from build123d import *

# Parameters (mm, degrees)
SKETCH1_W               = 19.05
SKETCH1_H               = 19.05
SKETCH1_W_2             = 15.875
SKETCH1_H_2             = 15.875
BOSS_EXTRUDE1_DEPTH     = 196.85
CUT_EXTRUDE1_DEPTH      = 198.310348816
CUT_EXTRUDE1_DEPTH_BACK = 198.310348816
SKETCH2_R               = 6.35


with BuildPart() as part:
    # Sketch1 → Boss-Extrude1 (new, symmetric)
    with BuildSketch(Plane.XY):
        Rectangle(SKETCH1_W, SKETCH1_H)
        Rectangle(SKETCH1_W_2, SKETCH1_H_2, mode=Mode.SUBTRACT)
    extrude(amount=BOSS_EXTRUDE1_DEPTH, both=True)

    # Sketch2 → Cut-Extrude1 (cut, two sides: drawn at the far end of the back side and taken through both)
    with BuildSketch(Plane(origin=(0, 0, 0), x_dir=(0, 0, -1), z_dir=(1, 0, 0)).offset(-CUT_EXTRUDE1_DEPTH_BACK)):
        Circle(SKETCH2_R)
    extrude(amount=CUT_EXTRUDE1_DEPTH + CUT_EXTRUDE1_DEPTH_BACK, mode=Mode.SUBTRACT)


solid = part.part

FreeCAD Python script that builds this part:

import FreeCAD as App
import Part
import Sketcher
from FreeCAD import Vector
Q = App.Units.Quantity

doc = App.newDocument("Part")
body = doc.addObject("PartDesign::Body", "Body")

# Sketch on XY plane
sketch1 = doc.addObject("Sketcher::SketchObject", "Sketch")
body.addObject(sketch1)
sketch1.AttachmentSupport = (doc.XY_Plane, [""])
sketch1.MapMode = "FlatFace"
sketch1.addGeometry([
    Part.LineSegment(Vector(-9.525, 9.525, 0), Vector(-9.525, -9.525, 0)),  # 0
    Part.LineSegment(Vector(-9.525, -9.525, 0), Vector(9.525, -9.525, 0)),  # 1
    Part.LineSegment(Vector(9.525, -9.525, 0), Vector(9.525, 9.525, 0)),  # 2
    Part.LineSegment(Vector(9.525, 9.525, 0), Vector(-9.525, 9.525, 0)),  # 3
    Part.LineSegment(Vector(7.9375, -7.9375, 0), Vector(-7.9375, -7.9375, 0)),  # 4
    Part.LineSegment(Vector(-7.9375, -7.9375, 0), Vector(-7.9375, 7.9375, 0)),  # 5
    Part.LineSegment(Vector(-7.9375, 7.9375, 0), Vector(7.9375, 7.9375, 0)),  # 6
    Part.LineSegment(Vector(7.9375, 7.9375, 0), Vector(7.9375, -7.9375, 0)),  # 7
], False)
sketch1.addConstraint([
    Sketcher.Constraint("Coincident", 0, 2, 1, 1),
    Sketcher.Constraint("Coincident", 1, 2, 2, 1),
    Sketcher.Constraint("Coincident", 2, 2, 3, 1),
    Sketcher.Constraint("Coincident", 3, 2, 0, 1),
    Sketcher.Constraint("Coincident", 4, 2, 5, 1),
    Sketcher.Constraint("Coincident", 5, 2, 6, 1),
    Sketcher.Constraint("Coincident", 6, 2, 7, 1),
    Sketcher.Constraint("Coincident", 7, 2, 4, 1),
    Sketcher.Constraint("Vertical", 0),
    Sketcher.Constraint("Horizontal", 1),
    Sketcher.Constraint("Vertical", 2),
    Sketcher.Constraint("Horizontal", 3),
    Sketcher.Constraint("Horizontal", 4),
    Sketcher.Constraint("Vertical", 5),
    Sketcher.Constraint("Horizontal", 6),
    Sketcher.Constraint("Vertical", 7),
    Sketcher.Constraint("Symmetric", 0, 2, 2, 2, -1, 1),
    Sketcher.Constraint("Symmetric", 4, 2, 6, 2, -1, 1),
    Sketcher.Constraint("Equal", 3, 0),
    Sketcher.Constraint("Equal", 6, 5),
    Sketcher.Constraint("DistanceX", 1, 1, 1, 2, Q("0.75 in")),
    Sketcher.Constraint("DistanceX", 4, 2, 4, 1, Q("0.625 in")),
])
pad1 = doc.addObject("PartDesign::Pad", "Pad")
body.addObject(pad1)
pad1.Profile = sketch1
pad1.Length = Q("15.5 in")
pad1.Midplane = True

# Sketch on YZ plane
sketch2 = doc.addObject("Sketcher::SketchObject", "Sketch001")
body.addObject(sketch2)
sketch2.AttachmentSupport = (doc.YZ_Plane, [""])
sketch2.MapMode = "FlatFace"
sketch2.addGeometry(Part.Circle(Vector(0, 0, 0), Vector(0, 0, 1), 6.35), False)
sketch2.addConstraint([
    Sketcher.Constraint("Coincident", 0, 3, -1, 1),
    Sketcher.Constraint("Diameter", 0, Q("0.5 in")),
])
pocket1 = doc.addObject("PartDesign::Pocket", "Pocket")
body.addObject(pocket1)
pocket1.Profile = sketch2
pocket1.Type = "ThroughAll"
pocket1.Midplane = True

doc.recompute()
